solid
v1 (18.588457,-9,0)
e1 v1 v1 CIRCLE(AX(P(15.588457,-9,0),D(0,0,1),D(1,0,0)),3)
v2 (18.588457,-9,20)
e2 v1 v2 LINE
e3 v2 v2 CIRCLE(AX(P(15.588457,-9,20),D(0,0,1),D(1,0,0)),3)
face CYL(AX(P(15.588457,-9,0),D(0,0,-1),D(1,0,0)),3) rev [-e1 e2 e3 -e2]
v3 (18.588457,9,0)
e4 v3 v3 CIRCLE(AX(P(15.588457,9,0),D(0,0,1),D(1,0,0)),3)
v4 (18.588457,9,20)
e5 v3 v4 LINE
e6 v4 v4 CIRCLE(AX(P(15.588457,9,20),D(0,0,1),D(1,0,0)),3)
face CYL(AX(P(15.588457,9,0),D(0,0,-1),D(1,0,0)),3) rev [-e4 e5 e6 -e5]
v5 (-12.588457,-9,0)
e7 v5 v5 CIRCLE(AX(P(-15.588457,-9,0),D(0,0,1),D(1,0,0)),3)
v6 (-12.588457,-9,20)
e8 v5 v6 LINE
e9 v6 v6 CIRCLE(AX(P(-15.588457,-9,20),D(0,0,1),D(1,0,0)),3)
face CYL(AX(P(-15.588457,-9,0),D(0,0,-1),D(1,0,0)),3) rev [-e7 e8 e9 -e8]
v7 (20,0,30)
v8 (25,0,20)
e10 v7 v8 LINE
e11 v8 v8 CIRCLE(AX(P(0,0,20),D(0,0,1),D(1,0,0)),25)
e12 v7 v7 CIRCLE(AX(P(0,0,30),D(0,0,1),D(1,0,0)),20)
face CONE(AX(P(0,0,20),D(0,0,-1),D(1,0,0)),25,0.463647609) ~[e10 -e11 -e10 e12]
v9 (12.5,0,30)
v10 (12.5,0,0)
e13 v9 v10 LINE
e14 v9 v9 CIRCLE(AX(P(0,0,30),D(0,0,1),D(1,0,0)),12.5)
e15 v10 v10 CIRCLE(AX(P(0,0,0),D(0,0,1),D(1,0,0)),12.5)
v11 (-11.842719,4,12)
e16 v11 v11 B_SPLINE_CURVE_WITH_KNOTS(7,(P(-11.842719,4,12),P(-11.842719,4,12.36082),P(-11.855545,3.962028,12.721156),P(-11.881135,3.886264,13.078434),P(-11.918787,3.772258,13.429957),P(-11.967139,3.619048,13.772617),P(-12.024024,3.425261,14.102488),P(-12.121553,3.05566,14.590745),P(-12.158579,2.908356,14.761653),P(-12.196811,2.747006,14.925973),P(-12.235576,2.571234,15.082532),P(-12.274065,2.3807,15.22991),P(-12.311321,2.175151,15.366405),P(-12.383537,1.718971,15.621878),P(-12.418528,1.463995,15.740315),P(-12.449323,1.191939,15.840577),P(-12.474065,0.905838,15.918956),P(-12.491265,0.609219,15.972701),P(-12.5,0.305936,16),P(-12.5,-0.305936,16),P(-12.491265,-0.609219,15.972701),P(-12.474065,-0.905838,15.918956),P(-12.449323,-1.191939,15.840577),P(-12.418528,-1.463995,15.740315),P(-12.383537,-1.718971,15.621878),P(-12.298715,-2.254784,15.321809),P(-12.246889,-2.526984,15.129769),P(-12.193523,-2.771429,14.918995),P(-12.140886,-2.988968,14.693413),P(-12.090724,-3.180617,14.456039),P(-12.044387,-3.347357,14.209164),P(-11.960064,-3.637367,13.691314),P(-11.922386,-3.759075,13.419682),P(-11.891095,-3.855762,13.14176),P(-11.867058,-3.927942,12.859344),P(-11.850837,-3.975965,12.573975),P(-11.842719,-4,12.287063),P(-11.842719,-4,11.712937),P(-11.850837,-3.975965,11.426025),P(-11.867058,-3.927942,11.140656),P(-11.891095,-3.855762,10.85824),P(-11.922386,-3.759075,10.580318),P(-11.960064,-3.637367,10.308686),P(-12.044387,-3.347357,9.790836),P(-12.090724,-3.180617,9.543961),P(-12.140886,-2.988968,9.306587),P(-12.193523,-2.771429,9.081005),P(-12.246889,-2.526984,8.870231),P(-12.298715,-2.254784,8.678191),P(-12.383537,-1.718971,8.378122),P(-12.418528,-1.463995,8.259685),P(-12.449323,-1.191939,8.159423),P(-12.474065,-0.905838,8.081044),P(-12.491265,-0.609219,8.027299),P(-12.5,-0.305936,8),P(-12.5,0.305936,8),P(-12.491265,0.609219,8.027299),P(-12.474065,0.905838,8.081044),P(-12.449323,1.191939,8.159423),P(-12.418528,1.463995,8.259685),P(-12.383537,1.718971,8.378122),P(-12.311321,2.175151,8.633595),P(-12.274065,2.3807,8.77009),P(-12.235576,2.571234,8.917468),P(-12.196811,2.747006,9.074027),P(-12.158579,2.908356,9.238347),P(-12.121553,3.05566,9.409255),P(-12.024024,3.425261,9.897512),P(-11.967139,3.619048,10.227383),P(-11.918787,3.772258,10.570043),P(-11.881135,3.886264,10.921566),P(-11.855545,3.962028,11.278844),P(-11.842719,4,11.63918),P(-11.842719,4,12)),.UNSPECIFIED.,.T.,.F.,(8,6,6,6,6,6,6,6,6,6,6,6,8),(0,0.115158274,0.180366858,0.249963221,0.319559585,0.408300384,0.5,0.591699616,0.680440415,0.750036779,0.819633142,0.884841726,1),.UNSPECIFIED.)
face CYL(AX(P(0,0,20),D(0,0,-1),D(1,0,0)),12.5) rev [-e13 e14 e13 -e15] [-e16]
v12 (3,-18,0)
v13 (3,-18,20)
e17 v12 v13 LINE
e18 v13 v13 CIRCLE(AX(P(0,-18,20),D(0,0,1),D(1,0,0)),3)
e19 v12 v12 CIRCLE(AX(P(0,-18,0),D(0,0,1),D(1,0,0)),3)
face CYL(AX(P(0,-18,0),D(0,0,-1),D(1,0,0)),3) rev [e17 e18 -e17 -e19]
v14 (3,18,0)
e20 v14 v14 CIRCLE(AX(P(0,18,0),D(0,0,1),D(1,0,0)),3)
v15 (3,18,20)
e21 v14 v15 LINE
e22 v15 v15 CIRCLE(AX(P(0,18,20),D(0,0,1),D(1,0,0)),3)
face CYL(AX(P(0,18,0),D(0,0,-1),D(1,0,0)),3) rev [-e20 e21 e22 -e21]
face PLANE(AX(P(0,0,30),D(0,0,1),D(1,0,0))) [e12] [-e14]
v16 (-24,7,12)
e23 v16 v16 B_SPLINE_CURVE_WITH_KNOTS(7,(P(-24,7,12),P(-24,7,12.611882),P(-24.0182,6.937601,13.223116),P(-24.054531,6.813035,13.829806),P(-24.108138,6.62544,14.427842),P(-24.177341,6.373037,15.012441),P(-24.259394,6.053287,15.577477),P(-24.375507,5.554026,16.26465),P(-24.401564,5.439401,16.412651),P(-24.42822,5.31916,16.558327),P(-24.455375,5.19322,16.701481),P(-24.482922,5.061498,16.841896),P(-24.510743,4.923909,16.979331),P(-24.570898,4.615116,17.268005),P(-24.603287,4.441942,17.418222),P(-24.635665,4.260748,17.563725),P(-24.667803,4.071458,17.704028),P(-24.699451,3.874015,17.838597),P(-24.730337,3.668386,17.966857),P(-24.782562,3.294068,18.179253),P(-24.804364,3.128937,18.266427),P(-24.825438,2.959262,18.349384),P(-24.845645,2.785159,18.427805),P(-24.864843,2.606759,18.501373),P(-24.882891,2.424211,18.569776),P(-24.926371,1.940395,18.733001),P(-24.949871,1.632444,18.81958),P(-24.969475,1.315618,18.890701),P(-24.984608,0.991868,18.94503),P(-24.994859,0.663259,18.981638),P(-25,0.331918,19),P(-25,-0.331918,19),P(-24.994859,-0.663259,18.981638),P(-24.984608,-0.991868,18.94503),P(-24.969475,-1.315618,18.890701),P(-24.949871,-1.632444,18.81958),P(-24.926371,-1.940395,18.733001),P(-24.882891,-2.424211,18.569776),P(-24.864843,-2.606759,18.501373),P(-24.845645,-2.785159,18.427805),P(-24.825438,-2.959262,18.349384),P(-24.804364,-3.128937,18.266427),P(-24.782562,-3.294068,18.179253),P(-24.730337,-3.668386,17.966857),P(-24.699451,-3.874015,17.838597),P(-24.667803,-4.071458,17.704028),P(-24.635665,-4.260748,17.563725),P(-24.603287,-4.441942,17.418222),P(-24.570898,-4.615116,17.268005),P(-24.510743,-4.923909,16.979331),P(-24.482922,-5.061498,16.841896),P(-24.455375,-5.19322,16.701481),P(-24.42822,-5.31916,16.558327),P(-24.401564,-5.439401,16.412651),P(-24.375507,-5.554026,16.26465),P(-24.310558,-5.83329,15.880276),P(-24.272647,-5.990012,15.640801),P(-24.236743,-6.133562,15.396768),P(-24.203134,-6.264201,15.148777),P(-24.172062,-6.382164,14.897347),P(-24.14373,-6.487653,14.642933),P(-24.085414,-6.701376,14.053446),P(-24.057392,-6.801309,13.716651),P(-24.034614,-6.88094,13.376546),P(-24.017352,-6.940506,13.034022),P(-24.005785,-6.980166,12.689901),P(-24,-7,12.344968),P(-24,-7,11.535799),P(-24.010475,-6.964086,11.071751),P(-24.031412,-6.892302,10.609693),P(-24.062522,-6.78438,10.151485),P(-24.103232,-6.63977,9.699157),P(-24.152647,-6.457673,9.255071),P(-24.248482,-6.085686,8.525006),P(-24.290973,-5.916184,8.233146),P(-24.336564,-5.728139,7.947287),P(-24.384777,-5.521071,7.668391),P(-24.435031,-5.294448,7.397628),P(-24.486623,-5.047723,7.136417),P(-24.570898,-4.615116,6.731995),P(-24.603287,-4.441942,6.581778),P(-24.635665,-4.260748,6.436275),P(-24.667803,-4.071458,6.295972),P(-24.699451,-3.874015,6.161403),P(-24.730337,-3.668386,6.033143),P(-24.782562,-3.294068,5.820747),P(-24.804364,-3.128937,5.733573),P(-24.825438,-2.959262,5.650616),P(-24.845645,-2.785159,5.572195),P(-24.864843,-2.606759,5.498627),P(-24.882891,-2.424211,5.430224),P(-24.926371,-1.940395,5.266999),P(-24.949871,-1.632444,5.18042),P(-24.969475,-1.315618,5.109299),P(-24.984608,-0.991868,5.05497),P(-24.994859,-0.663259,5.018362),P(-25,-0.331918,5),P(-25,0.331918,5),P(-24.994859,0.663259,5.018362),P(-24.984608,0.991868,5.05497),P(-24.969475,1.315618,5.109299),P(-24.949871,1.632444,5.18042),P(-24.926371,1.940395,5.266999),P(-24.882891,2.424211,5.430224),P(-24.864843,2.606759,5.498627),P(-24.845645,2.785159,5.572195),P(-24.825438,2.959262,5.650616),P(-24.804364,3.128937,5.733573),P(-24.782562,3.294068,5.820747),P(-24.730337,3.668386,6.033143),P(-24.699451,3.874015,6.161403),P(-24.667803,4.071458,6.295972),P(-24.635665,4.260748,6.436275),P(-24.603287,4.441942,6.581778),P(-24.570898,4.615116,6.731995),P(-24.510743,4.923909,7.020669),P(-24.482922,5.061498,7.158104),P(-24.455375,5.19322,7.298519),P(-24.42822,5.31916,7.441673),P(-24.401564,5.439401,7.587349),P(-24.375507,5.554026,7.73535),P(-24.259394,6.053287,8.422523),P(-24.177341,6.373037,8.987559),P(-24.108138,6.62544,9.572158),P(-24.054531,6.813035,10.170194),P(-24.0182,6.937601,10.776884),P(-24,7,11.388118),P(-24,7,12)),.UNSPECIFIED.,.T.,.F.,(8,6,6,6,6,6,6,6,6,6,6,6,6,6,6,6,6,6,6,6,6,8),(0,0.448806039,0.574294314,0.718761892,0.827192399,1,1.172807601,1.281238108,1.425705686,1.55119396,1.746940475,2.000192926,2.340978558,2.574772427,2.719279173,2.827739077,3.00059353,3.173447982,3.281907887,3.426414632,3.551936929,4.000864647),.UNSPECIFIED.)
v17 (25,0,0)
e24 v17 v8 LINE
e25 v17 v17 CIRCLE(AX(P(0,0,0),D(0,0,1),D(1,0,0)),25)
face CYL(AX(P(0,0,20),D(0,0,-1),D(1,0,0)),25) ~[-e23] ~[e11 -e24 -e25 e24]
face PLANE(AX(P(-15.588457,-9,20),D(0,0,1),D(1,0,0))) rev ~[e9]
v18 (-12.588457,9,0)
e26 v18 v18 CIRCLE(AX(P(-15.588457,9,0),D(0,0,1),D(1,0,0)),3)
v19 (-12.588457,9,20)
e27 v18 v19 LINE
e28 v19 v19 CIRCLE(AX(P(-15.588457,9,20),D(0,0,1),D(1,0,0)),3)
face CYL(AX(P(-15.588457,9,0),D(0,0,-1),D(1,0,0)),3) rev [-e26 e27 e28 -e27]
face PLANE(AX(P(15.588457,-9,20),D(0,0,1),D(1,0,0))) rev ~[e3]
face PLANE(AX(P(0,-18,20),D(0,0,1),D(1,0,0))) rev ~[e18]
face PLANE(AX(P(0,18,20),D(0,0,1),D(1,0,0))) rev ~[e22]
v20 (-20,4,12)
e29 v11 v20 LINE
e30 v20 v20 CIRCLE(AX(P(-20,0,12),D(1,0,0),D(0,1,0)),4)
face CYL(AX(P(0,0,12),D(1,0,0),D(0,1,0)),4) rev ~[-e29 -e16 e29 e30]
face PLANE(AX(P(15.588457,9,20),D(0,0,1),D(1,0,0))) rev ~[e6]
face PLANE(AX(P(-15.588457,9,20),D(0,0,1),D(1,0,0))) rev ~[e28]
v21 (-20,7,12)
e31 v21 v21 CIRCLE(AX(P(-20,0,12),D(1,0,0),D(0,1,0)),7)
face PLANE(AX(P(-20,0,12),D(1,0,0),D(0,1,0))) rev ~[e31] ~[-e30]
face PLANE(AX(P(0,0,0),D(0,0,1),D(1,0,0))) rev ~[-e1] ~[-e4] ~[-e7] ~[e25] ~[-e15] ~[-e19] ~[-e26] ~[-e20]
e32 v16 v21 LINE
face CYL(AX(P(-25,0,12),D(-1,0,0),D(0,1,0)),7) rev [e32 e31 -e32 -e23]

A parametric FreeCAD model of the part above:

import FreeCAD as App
import Part
import Sketcher

V = App.Vector


def edges_at(feature, points):
    """Names of the edges that pass closest to the given points."""
    edges = feature.Shape.Edges
    near = lambda p: min(range(len(edges)), key=lambda i: edges[i].distToShape(Part.Vertex(*p))[0])
    return sorted({f"Edge{near(p) + 1}" for p in points})

doc = App.newDocument("Part")
body = doc.addObject("PartDesign::Body", "Body")

sketch1 = body.newObject("Sketcher::SketchObject", "Sketch")
sketch1.AttachmentSupport = (doc.getObject("XY_Plane"), [""])
sketch1.MapMode = "FlatFace"
sketch1.addGeometry(Part.Circle(V(0, 0, 0), V(0, 0, 1), 25), False)
sketch1.addGeometry(Part.Circle(V(0, 0, 0), V(0, 0, 1), 12), False)
sketch1.addConstraint(Sketcher.Constraint("Coincident", 0, 3, -1, 1))
sketch1.addConstraint(Sketcher.Constraint("Coincident", 1, 3, -1, 1))
sketch1.addConstraint(Sketcher.Constraint("Diameter", 0, 50.0))
sketch1.addConstraint(Sketcher.Constraint("Diameter", 1, 25.0))
pad1 = body.newObject("PartDesign::Pad", "Pad")
pad1.Profile = sketch1
pad1.Length = 20

sketch2 = body.newObject("Sketcher::SketchObject", "Sketch001")
sketch2.AttachmentSupport = (doc.getObject("XY_Plane"), [""])
sketch2.MapMode = "FlatFace"
sketch2.AttachmentOffset = App.Placement(V(0, 0, 20), App.Rotation())
sketch2.addGeometry(Part.Circle(V(0, 0, 0), V(0, 0, 1), 25), False)
sketch2.addGeometry(Part.Circle(V(0, 0, 0), V(0, 0, 1), 12), False)
sketch2.addConstraint(Sketcher.Constraint("Coincident", 0, 3, -1, 1))
sketch2.addConstraint(Sketcher.Constraint("Coincident", 1, 3, -1, 1))
sketch2.addConstraint(Sketcher.Constraint("Diameter", 0, 50.0))
sketch2.addConstraint(Sketcher.Constraint("Diameter", 1, 25.0))
pad2 = body.newObject("PartDesign::Pad", "Pad001")
pad2.Profile = sketch2
pad2.Length = 10
doc.recompute()

chamfer = body.newObject("PartDesign::Chamfer", "Chamfer")
chamfer.Base = (pad2, edges_at(pad2, [(-25, 0, 30)]))
chamfer.ChamferType = "Two distances"
chamfer.Size = 5
chamfer.Size2 = 10

sketch3 = body.newObject("Sketcher::SketchObject", "Sketch002")
sketch3.AttachmentSupport = (doc.getObject("YZ_Plane"), [""])
sketch3.MapMode = "FlatFace"
sketch3.addGeometry(Part.Circle(V(0, 12, 0), V(0, 0, 1), 4), False)
sketch3.addConstraint(Sketcher.Constraint("PointOnObject", 0, 3, -2))
sketch3.addConstraint(Sketcher.Constraint("Diameter", 0, 8.0))
sketch3.addConstraint(Sketcher.Constraint("DistanceY", -1, 1, 0, 3, 12.0))
pocket1 = body.newObject("PartDesign::Pocket", "Pocket")
pocket1.Profile = sketch3
pocket1.Length = 26

sketch4 = body.newObject("Sketcher::SketchObject", "Sketch003")
sketch4.AttachmentSupport = (doc.getObject("YZ_Plane"), [""])
sketch4.MapMode = "FlatFace"
sketch4.AttachmentOffset = App.Placement(V(0, 0, -25), App.Rotation())
sketch4.addGeometry(Part.Circle(V(0, 12, 0), V(0, 0, 1), 7), False)
sketch4.addConstraint(Sketcher.Constraint("PointOnObject", 0, 3, -2))
sketch4.addConstraint(Sketcher.Constraint("Diameter", 0, 14.0))
sketch4.addConstraint(Sketcher.Constraint("DistanceY", -1, 1, 0, 3, 12.0))
pocket2 = body.newObject("PartDesign::Pocket", "Pocket001")
pocket2.Profile = sketch4
pocket2.Length = 5
pocket2.Reversed = True

sketch5 = body.newObject("Sketcher::SketchObject", "Sketch004")
sketch5.AttachmentSupport = (doc.getObject("XY_Plane"), [""])
sketch5.MapMode = "FlatFace"
sketch5.addGeometry(Part.Circle(V(0, -18, 0), V(0, 0, 1), 3), False)
sketch5.addGeometry(Part.Circle(V(15.6, -9, 0), V(0, 0, 1), 3), False)
sketch5.addGeometry(Part.Circle(V(15.6, 9, 0), V(0, 0, 1), 3), False)
sketch5.addGeometry(Part.Circle(V(0, 18, 0), V(0, 0, 1), 3), False)
sketch5.addGeometry(Part.Circle(V(-15.6, 9, 0), V(0, 0, 1), 3), False)
sketch5.addGeometry(Part.Circle(V(-15.6, -9, 0), V(0, 0, 1), 3), False)
sketch5.addConstraint(Sketcher.Constraint("Equal", 0, 1))
sketch5.addConstraint(Sketcher.Constraint("Equal", 1, 2))
sketch5.addConstraint(Sketcher.Constraint("Equal", 2, 3))
sketch5.addConstraint(Sketcher.Constraint("Equal", 3, 4))
sketch5.addConstraint(Sketcher.Constraint("Equal", 4, 5))
sketch5.addConstraint(Sketcher.Constraint("Symmetric", 0, 3, 3, 3, -1, 1))
sketch5.addConstraint(Sketcher.Constraint("Symmetric", 1, 3, 4, 3, -1, 1))
sketch5.addConstraint(Sketcher.Constraint("Symmetric", 2, 3, 5, 3, -1, 1))
sketch5.addConstraint(Sketcher.Constraint("Symmetric", 2, 3, 4, 3, -2))
sketch5.addConstraint(Sketcher.Constraint("PointOnObject", 0, 3, -2))
sketch5.addConstraint(Sketcher.Constraint("Diameter", 0, 6.0))
sketch5.addConstraint(Sketcher.Constraint("DistanceY", 0, 3, -1, 1, 18.0))
sketch5.addConstraint(Sketcher.Constraint("DistanceY", 1, 3, -1, 1, 9.0))
sketch5.addConstraint(Sketcher.Constraint("DistanceX", -1, 1, 1, 3, 15.588457))
pocket3 = body.newObject("PartDesign::Pocket", "Pocket002")
pocket3.Profile = sketch5
pocket3.Length = 20
pocket3.Reversed = True

doc.recompute()
